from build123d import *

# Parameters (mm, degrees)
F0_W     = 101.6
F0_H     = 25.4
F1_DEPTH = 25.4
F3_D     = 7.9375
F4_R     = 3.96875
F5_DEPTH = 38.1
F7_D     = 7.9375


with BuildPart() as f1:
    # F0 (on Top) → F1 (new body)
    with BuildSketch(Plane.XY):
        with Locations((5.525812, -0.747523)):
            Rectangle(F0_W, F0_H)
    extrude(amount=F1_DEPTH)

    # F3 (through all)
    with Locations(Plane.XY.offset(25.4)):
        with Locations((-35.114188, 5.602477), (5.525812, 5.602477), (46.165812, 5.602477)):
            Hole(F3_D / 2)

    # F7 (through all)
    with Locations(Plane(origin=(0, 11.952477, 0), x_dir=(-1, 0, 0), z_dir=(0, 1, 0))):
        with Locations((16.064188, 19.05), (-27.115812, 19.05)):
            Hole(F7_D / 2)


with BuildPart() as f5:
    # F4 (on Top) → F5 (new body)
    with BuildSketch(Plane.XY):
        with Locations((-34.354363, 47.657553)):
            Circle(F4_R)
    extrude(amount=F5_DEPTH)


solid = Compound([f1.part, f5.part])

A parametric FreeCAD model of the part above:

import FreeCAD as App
import Part
import Sketcher
Q = App.Units.Quantity


def add_polygon(sketch, points):
    """Adds a closed chain of lines whose ends are joined by coincident constraints."""
    first, n = sketch.GeometryCount, len(points)
    for a, b in zip(points, points[1:] + points[:1]):
        sketch.addGeometry(Part.LineSegment(App.Vector(*a, 0), App.Vector(*b, 0)), False)
    for i in range(n):
        sketch.addConstraint(Sketcher.Constraint("Coincident", first + i, 2, first + (i + 1) % n, 1))

doc = App.newDocument("Part")
body = doc.addObject("PartDesign::Body", "Body")

# Sketch on XY plane
sketch1 = body.newObject("Sketcher::SketchObject", "Sketch")
sketch1.AttachmentSupport = (doc.getObject("XY_Plane"), [""])
sketch1.MapMode = "FlatFace"
add_polygon(sketch1, [(-45.274188, 11.952477), (-45.274188, -13.447523), (56.325812, -13.447523), (56.325812, 11.952477)])  # lines 0-3
sketch1.addConstraint([
    Sketcher.Constraint("Vertical", 0),
    Sketcher.Constraint("Horizontal", 1),
    Sketcher.Constraint("Vertical", 2),
    Sketcher.Constraint("Horizontal", 3),
    Sketcher.Constraint("DistanceX", 1, 1, 1, 2, Q("4 in")),
    Sketcher.Constraint("DistanceY", 0, 2, 0, 1, Q("1 in")),
    Sketcher.Constraint("DistanceX", 0, 2, -1, 1, Q("45.274188 mm")),
    Sketcher.Constraint("DistanceY", 0, 2, -1, 1, Q("13.447523 mm")),
])
pad1 = body.newObject("PartDesign::Pad", "Pad")
pad1.Profile = sketch1
pad1.Length = Q("1 in")

# Sketch on XY plane
sketch2 = body.newObject("Sketcher::SketchObject", "Sketch001")
sketch2.AttachmentSupport = (doc.getObject("XY_Plane"), [""])
sketch2.MapMode = "FlatFace"
sketch2.AttachmentOffset = App.Placement(App.Vector(0, 0, 1 * 25.4), App.Rotation())
sketch2.addGeometry([
    Part.Circle(App.Vector(-35.114188, 5.602477, 0), App.Vector(0, 0, 1), 3.96875),
    Part.Circle(App.Vector(5.525812, 5.602477, 0), App.Vector(0, 0, 1), 3.96875),
    Part.Circle(App.Vector(46.165812, 5.602477, 0), App.Vector(0, 0, 1), 3.96875),
], False)
sketch2.addConstraint([
    Sketcher.Constraint("Equal", 0, 1),
    Sketcher.Constraint("Equal", 1, 2),
    Sketcher.Constraint("Horizontal", 0, 3, 1, 3),
    Sketcher.Constraint("Horizontal", 1, 3, 2, 3),
    Sketcher.Constraint("Diameter", 0, Q("0.3125 in")),
    Sketcher.Constraint("DistanceX", 0, 3, 1, 3, Q("1.6 in")),
    Sketcher.Constraint("DistanceX", 1, 3, 2, 3, Q("1.6 in")),
    Sketcher.Constraint("DistanceX", 0, 3, -1, 1, Q("35.114188 mm")),
    Sketcher.Constraint("DistanceY", -1, 1, 0, 3, Q("5.602477 mm")),
])
doc.recompute()
hole = body.newObject("PartDesign::Hole", "Hole")
hole.Profile = sketch2
hole.ThreadType = "None"
hole.Diameter = Q("0.3125 in")
hole.DepthType = "ThroughAll"

# Sketch on XZ plane
sketch3 = body.newObject("Sketcher::SketchObject", "Sketch002")
sketch3.AttachmentSupport = (doc.getObject("XZ_Plane"), [""])
sketch3.MapMode = "FlatFace"
sketch3.AttachmentOffset = App.Placement(App.Vector(0, 0, -11.952477), App.Rotation())
sketch3.addGeometry([
    Part.Circle(App.Vector(-16.064188, 19.05, 0), App.Vector(0, 0, 1), 3.96875),
    Part.Circle(App.Vector(27.115812, 19.05, 0), App.Vector(0, 0, 1), 3.96875),
], False)
sketch3.addConstraint([
    Sketcher.Constraint("Equal", 0, 1),
    Sketcher.Constraint("Horizontal", 0, 3, 1, 3),
    Sketcher.Constraint("Diameter", 0, Q("0.3125 in")),
    Sketcher.Constraint("DistanceX", 0, 3, 1, 3, Q("1.7 in")),
    Sketcher.Constraint("DistanceY", -1, 1, 0, 3, Q("0.75 in")),
    Sketcher.Constraint("DistanceX", 0, 3, -1, 1, Q("16.064188 mm")),
])
doc.recompute()
hole2 = body.newObject("PartDesign::Hole", "Hole001")
hole2.Profile = sketch3
hole2.ThreadType = "None"
hole2.Diameter = Q("0.3125 in")
hole2.DepthType = "ThroughAll"
hole2.Reversed = True
body2 = doc.addObject("PartDesign::Body", "Body001")

# Sketch on XY plane
sketch4 = body2.newObject("Sketcher::SketchObject", "Sketch003")
sketch4.AttachmentSupport = (doc.getObject("XY_Plane001"), [""])
sketch4.MapMode = "FlatFace"
sketch4.addGeometry(Part.Circle(App.Vector(-34.354363, 47.657553, 0), App.Vector(0, 0, 1), 3.96875), False)
sketch4.addConstraint([
    Sketcher.Constraint("Diameter", 0, Q("0.3125 in")),
    Sketcher.Constraint("DistanceX", 0, 3, -1, 1, Q("34.354363 mm")),
    Sketcher.Constraint("DistanceY", -1, 1, 0, 3, Q("47.657553 mm")),
])
pad2 = body2.newObject("PartDesign::Pad", "Pad001")
pad2.Profile = sketch4
pad2.Length = Q("1.5 in")

doc.recompute()
